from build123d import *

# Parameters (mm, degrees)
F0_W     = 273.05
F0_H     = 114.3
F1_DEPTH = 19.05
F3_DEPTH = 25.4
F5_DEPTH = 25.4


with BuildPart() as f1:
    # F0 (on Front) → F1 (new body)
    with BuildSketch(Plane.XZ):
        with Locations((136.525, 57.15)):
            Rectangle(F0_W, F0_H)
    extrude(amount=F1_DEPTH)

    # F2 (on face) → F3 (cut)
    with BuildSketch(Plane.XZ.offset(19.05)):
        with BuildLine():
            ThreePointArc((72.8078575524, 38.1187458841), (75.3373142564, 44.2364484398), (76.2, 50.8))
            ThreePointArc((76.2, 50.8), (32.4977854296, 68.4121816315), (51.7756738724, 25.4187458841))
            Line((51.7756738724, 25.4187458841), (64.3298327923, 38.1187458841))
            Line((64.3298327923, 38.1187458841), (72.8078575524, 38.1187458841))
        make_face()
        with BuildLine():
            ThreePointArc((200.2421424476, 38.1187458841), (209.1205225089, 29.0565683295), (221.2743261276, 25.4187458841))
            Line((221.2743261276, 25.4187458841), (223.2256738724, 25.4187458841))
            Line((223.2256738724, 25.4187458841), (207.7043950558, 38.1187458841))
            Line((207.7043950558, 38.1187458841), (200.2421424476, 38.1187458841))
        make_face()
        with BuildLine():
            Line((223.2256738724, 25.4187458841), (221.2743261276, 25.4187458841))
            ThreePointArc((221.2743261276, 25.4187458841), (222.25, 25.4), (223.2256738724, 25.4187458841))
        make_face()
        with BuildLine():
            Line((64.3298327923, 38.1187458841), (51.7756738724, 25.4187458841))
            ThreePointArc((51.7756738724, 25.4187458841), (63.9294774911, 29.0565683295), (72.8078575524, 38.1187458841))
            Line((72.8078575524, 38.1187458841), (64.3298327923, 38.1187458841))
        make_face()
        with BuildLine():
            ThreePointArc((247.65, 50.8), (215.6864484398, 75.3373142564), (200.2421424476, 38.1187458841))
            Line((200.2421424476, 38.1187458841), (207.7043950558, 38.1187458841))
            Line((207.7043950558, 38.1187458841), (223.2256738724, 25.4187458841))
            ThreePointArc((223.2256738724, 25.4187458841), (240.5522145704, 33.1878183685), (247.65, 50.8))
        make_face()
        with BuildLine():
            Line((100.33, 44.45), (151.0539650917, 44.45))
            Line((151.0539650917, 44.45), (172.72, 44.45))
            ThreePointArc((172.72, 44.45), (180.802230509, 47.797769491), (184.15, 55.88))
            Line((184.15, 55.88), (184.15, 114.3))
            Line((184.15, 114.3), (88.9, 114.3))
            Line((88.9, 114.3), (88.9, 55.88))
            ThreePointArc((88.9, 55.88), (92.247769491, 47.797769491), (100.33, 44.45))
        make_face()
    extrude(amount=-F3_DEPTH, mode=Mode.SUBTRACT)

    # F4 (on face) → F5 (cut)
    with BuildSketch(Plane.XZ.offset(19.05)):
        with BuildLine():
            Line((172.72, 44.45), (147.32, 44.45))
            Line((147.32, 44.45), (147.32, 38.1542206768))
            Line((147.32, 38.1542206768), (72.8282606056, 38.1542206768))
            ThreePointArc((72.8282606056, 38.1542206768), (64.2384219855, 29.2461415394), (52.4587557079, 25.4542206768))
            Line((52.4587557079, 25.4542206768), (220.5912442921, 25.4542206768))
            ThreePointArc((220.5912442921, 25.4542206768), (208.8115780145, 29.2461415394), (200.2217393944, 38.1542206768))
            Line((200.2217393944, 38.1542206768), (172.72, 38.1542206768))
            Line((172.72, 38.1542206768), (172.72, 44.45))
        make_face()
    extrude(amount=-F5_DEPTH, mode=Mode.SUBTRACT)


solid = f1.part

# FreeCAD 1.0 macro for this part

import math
import FreeCAD as App
import Part
import Sketcher
from FreeCAD import Vector
Q = App.Units.Quantity


def add_polygon(sketch, points):
    """Adds a closed chain of lines whose ends are joined by coincident constraints."""
    first, n = sketch.GeometryCount, len(points)
    for a, b in zip(points, points[1:] + points[:1]):
        sketch.addGeometry(Part.LineSegment(App.Vector(*a, 0), App.Vector(*b, 0)), False)
    for i in range(n):
        sketch.addConstraint(Sketcher.Constraint("Coincident", first + i, 2, first + (i + 1) % n, 1))

doc = App.newDocument("Part")
body = doc.addObject("PartDesign::Body", "Body")

# Sketch on XZ plane
sketch1 = body.newObject("Sketcher::SketchObject", "Sketch")
sketch1.AttachmentSupport = (doc.getObject("XZ_Plane"), [""])
sketch1.MapMode = "FlatFace"
add_polygon(sketch1, [(0, 114), (0, 0), (273, 0), (273, 114)])  # lines 0-3
sketch1.addConstraint(Sketcher.Constraint("Vertical", 0))
sketch1.addConstraint(Sketcher.Constraint("Horizontal", 1))
sketch1.addConstraint(Sketcher.Constraint("Vertical", 2))
sketch1.addConstraint(Sketcher.Constraint("Horizontal", 3))
sketch1.addConstraint(Sketcher.Constraint("Coincident", 0, 2, -1, 1))
sketch1.addConstraint(Sketcher.Constraint("DistanceY", 0, 2, 0, 1, Q("4.5 in")))
sketch1.addConstraint(Sketcher.Constraint("DistanceX", 1, 1, 1, 2, Q("10.75 in")))
pad1 = body.newObject("PartDesign::Pad", "Pad")
pad1.Profile = sketch1
pad1.Length = Q("0.75 in")

# Sketch on XZ plane
sketch2 = body.newObject("Sketcher::SketchObject", "Sketch001")
sketch2.AttachmentSupport = (doc.getObject("XZ_Plane"), [""])
sketch2.MapMode = "FlatFace"
sketch2.AttachmentOffset = App.Placement(Vector(0, 0, 0.75 * 25.4), App.Rotation())
sketch2.addGeometry(Part.ArcOfCircle(Part.Circle(Vector(50.8, 50.8, 0), Vector(0, 0, 1), 25.4), math.radians(-30), math.radians(0)), False)
sketch2.addGeometry(Part.ArcOfCircle(Part.Circle(Vector(50.8, 50.8, 0), Vector(0, 0, 1), 25.4), math.radians(0), math.radians(272)), False)
sketch2.addGeometry(Part.ArcOfCircle(Part.Circle(Vector(50.8, 50.8, 0), Vector(0, 0, 1), 25.4), math.radians(-88), math.radians(-30)), False)
sketch2.addGeometry(Part.ArcOfCircle(Part.Circle(Vector(222.2, 50.8, 0), Vector(0, 0, 1), 25.4), math.radians(-92.2), math.radians(-87.8)), False)
sketch2.addGeometry(Part.ArcOfCircle(Part.Circle(Vector(222.2, 50.8, 0), Vector(0, 0, 1), 25.4), math.radians(-88), math.radians(0)), False)
sketch2.addGeometry(Part.ArcOfCircle(Part.Circle(Vector(222.2, 50.8, 0), Vector(0, 0, 1), 25.4), math.radians(0), math.radians(268)), False)
sketch2.addGeometry(Part.LineSegment(Vector(100.3, 44.5, 0), Vector(172.7, 44.5, 0)), False)
sketch2.addGeometry(Part.ArcOfCircle(Part.Circle(Vector(172.7, 55.9, 0), Vector(0, 0, 1), 11.4), math.radians(-90), math.radians(0)), False)
sketch2.addGeometry(Part.LineSegment(Vector(184.2, 55.9, 0), Vector(184.2, 114.3, 0)), False)
sketch2.addGeometry(Part.LineSegment(Vector(184.2, 114.3, 0), Vector(88.9, 114.3, 0)), False)
sketch2.addGeometry(Part.LineSegment(Vector(88.9, 114.3, 0), Vector(88.9, 55.9, 0)), False)
sketch2.addGeometry(Part.ArcOfCircle(Part.Circle(Vector(100.3, 55.9, 0), Vector(0, 0, 1), 11.4), math.radians(180), math.radians(270)), False)
sketch2.addConstraint(Sketcher.Constraint("Tangent", 0, 2, 1, 1))
sketch2.addConstraint(Sketcher.Constraint("Tangent", 1, 2, 2, 1))
sketch2.addConstraint(Sketcher.Constraint("Tangent", 2, 2, 0, 1))
sketch2.addConstraint(Sketcher.Constraint("Tangent", 3, 2, 4, 1))
sketch2.addConstraint(Sketcher.Constraint("Tangent", 4, 2, 5, 1))
sketch2.addConstraint(Sketcher.Constraint("Coincident", 5, 2, 3, 1))
sketch2.addConstraint(Sketcher.Constraint("Tangent", 6, 2, 7, 1))
sketch2.addConstraint(Sketcher.Constraint("Tangent", 7, 2, 8, 1))
sketch2.addConstraint(Sketcher.Constraint("Coincident", 8, 2, 9, 1))
sketch2.addConstraint(Sketcher.Constraint("Coincident", 9, 2, 10, 1))
sketch2.addConstraint(Sketcher.Constraint("Tangent", 10, 2, 11, 1))
sketch2.addConstraint(Sketcher.Constraint("Tangent", 11, 2, 6, 1))
sketch2.addConstraint(Sketcher.Constraint("Horizontal", 6))
sketch2.addConstraint(Sketcher.Constraint("Vertical", 8))
sketch2.addConstraint(Sketcher.Constraint("Horizontal", 9))
sketch2.addConstraint(Sketcher.Constraint("Vertical", 10))
sketch2.addConstraint(Sketcher.Constraint("Equal", 2, 3))
sketch2.addConstraint(Sketcher.Constraint("Equal", 3, 4))
sketch2.addConstraint(Sketcher.Constraint("Equal", 7, 11))
sketch2.addConstraint(Sketcher.Constraint("Horizontal", 2, 3, 3, 3))
sketch2.addConstraint(Sketcher.Constraint("Horizontal", 5, 3, 0, 2))
sketch2.addConstraint(Sketcher.Constraint("Horizontal", 1, 2, 3, 2))
sketch2.addConstraint(Sketcher.Constraint("Horizontal", 0, 2, 4, 2))
sketch2.addConstraint(Sketcher.Constraint("Horizontal", 3, 2, 5, 2))
sketch2.addConstraint(Sketcher.Constraint("Radius", 0, Q("1 in")))
sketch2.addConstraint(Sketcher.Constraint("Radius", 7, Q("0.45 in")))
sketch2.addConstraint(Sketcher.Constraint("DistanceY", 8, 1, 8, 2, Q("2.3 in")))
sketch2.addConstraint(Sketcher.Constraint("DistanceX", -1, 1, 0, 3, Q("2 in")))
sketch2.addConstraint(Sketcher.Constraint("DistanceY", -1, 1, 0, 3, Q("2 in")))
sketch2.addConstraint(Sketcher.Constraint("DistanceX", 6, 1, 6, 2, Q("2.85 in")))
sketch2.addConstraint(Sketcher.Constraint("DistanceX", -1, 1, 7, 3, Q("6.8 in")))
sketch2.addConstraint(Sketcher.Constraint("DistanceY", -1, 1, 7, 3, Q("2.2 in")))
sketch2.addConstraint(Sketcher.Constraint("DistanceX", 11, 3, 3, 3, Q("4.8 in")))
sketch2.addConstraint(Sketcher.Constraint("DistanceY", 1, 2, 2, 2, Q("0.5 in")))
sketch2.addConstraint(Sketcher.Constraint("DistanceX", -1, 1, 1, 2, Q("51.775674 mm")))
pocket1 = body.newObject("PartDesign::Pocket", "Pocket")
pocket1.Profile = sketch2
pocket1.Length = Q("1 in")

# Sketch on XZ plane
sketch3 = body.newObject("Sketcher::SketchObject", "Sketch002")
sketch3.AttachmentSupport = (doc.getObject("XZ_Plane"), [""])
sketch3.MapMode = "FlatFace"
sketch3.AttachmentOffset = App.Placement(Vector(0, 0, 0.75 * 25.4), App.Rotation())
sketch3.addGeometry(Part.LineSegment(Vector(173, 44, 0), Vector(147, 44, 0)), False)
sketch3.addGeometry(Part.LineSegment(Vector(147, 44, 0), Vector(147, 38, 0)), False)
sketch3.addGeometry(Part.LineSegment(Vector(147, 38, 0), Vector(73, 38, 0)), False)
sketch3.addGeometry(Part.ArcOfCircle(Part.Circle(Vector(51, 51, 0), Vector(0, 0, 1), 25), math.radians(-86), math.radians(-30)), False)
sketch3.addGeometry(Part.LineSegment(Vector(52, 25, 0), Vector(221, 25, 0)), False)
sketch3.addGeometry(Part.ArcOfCircle(Part.Circle(Vector(222, 51, 0), Vector(0, 0, 1), 25), math.radians(-150), math.radians(-94)), False)
sketch3.addGeometry(Part.LineSegment(Vector(200, 38, 0), Vector(173, 38, 0)), False)
sketch3.addGeometry(Part.LineSegment(Vector(173, 38, 0), Vector(173, 44, 0)), False)
sketch3.addConstraint(Sketcher.Constraint("Coincident", 0, 2, 1, 1))
sketch3.addConstraint(Sketcher.Constraint("Coincident", 1, 2, 2, 1))
sketch3.addConstraint(Sketcher.Constraint("Coincident", 2, 2, 3, 2))
sketch3.addConstraint(Sketcher.Constraint("Coincident", 3, 1, 4, 1))
sketch3.addConstraint(Sketcher.Constraint("Coincident", 4, 2, 5, 2))
sketch3.addConstraint(Sketcher.Constraint("Coincident", 5, 1, 6, 1))
sketch3.addConstraint(Sketcher.Constraint("Coincident", 6, 2, 7, 1))
sketch3.addConstraint(Sketcher.Constraint("Coincident", 7, 2, 0, 1))
sketch3.addConstraint(Sketcher.Constraint("Horizontal", 0))
sketch3.addConstraint(Sketcher.Constraint("Vertical", 1))
sketch3.addConstraint(Sketcher.Constraint("Horizontal", 2))
sketch3.addConstraint(Sketcher.Constraint("Horizontal", 4))
sketch3.addConstraint(Sketcher.Constraint("Horizontal", 6))
sketch3.addConstraint(Sketcher.Constraint("Vertical", 7))
sketch3.addConstraint(Sketcher.Constraint("Equal", 3, 5))
sketch3.addConstraint(Sketcher.Constraint("Horizontal", 3, 3, 5, 3))
sketch3.addConstraint(Sketcher.Constraint("Horizontal", 2, 2, 5, 1))
sketch3.addConstraint(Sketcher.Constraint("Radius", 3, Q("1 in")))
sketch3.addConstraint(Sketcher.Constraint("DistanceX", 0, 2, 0, 1, Q("1 in")))
sketch3.addConstraint(Sketcher.Constraint("DistanceX", -1, 1, 3, 3, Q("2 in")))
sketch3.addConstraint(Sketcher.Constraint("DistanceY", -1, 1, 3, 3, Q("2 in")))
sketch3.addConstraint(Sketcher.Constraint("DistanceX", -1, 1, 0, 2, Q("5.8 in")))
sketch3.addConstraint(Sketcher.Constraint("DistanceY", 3, 1, 2, 2, Q("0.5 in")))
sketch3.addConstraint(Sketcher.Constraint("DistanceX", -1, 1, 5, 3, Q("8.75 in")))
sketch3.addConstraint(Sketcher.Constraint("DistanceY", -1, 1, 0, 2, Q("1.75 in")))
sketch3.addConstraint(Sketcher.Constraint("DistanceX", 2, 2, 2, 1, Q("74.491739 mm")))
pocket2 = body.newObject("PartDesign::Pocket", "Pocket001")
pocket2.Profile = sketch3
pocket2.Length = Q("1 in")

doc.recompute()
